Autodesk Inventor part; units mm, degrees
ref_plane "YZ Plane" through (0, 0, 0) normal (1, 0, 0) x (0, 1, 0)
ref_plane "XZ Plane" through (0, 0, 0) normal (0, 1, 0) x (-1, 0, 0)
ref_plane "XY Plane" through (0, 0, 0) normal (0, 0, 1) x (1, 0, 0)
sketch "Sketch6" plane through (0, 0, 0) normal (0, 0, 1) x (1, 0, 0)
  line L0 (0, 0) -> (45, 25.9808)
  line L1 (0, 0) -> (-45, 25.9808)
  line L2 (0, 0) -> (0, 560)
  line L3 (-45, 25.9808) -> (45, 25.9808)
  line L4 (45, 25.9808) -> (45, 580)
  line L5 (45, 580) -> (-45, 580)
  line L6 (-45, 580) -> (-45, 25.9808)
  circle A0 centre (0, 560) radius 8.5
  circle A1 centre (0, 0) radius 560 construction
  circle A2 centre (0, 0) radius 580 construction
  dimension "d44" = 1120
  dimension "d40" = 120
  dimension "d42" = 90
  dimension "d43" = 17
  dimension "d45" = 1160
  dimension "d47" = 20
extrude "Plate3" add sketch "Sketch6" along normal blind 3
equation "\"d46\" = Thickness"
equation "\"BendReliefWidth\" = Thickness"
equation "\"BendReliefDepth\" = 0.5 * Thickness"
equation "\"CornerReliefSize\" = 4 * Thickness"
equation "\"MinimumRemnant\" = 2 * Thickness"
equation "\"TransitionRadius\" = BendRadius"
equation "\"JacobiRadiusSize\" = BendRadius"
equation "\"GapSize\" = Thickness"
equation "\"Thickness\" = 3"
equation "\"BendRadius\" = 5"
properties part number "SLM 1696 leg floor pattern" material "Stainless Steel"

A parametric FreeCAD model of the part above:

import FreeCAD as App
import Part
import Sketcher
Q = App.Units.Quantity

doc = App.newDocument("Part")
body = doc.addObject("PartDesign::Body", "Body")

# Sketch on XY plane
sketch1 = body.newObject("Sketcher::SketchObject", "Sketch")
sketch1.AttachmentSupport = (doc.getObject("XY_Plane"), [""])
sketch1.MapMode = "FlatFace"
sketch1.addGeometry(Part.LineSegment(App.Vector(0, 0, 0), App.Vector(45, 26, 0)), False)
sketch1.addGeometry(Part.LineSegment(App.Vector(45, 26, 0), App.Vector(45, 580, 0)), False)
sketch1.addGeometry(Part.LineSegment(App.Vector(45, 580, 0), App.Vector(-45, 580, 0)), False)
sketch1.addGeometry(Part.LineSegment(App.Vector(-45, 580, 0), App.Vector(-45, 26, 0)), False)
sketch1.addGeometry(Part.LineSegment(App.Vector(-45, 26, 0), App.Vector(0, 0, 0)), False)
sketch1.addGeometry(Part.Circle(App.Vector(0, 560, 0), App.Vector(0, 0, 1), 8), False)
sketch1.addConstraint(Sketcher.Constraint("Coincident", 0, 2, 1, 1))
sketch1.addConstraint(Sketcher.Constraint("Coincident", 1, 2, 2, 1))
sketch1.addConstraint(Sketcher.Constraint("Coincident", 2, 2, 3, 1))
sketch1.addConstraint(Sketcher.Constraint("Coincident", 3, 2, 4, 1))
sketch1.addConstraint(Sketcher.Constraint("Coincident", 4, 2, 0, 1))
sketch1.addConstraint(Sketcher.Constraint("Vertical", 1))
sketch1.addConstraint(Sketcher.Constraint("Horizontal", 2))
sketch1.addConstraint(Sketcher.Constraint("Vertical", 3))
sketch1.addConstraint(Sketcher.Constraint("Coincident", 4, 2, -1, 1))
sketch1.addConstraint(Sketcher.Constraint("Symmetric", 0, 2, 3, 2, -2))
sketch1.addConstraint(Sketcher.Constraint("PointOnObject", 5, 3, -2))
sketch1.addConstraint(Sketcher.Constraint("Diameter", 5, Q("17 mm")))
sketch1.addConstraint(Sketcher.Constraint("DistanceX", 2, 2, 2, 1, Q("90 mm")))
sketch1.addConstraint(Sketcher.Constraint("DistanceY", 5, 3, 1, 2, Q("20 mm")))
sketch1.addConstraint(Sketcher.Constraint("Angle", 0, Q("30 deg")))
sketch1.addConstraint(Sketcher.Constraint("DistanceY", -1, 1, 5, 3, Q("560 mm")))
pad1 = body.newObject("PartDesign::Pad", "Pad")
pad1.Profile = sketch1
pad1.Length = 3

doc.recompute()
